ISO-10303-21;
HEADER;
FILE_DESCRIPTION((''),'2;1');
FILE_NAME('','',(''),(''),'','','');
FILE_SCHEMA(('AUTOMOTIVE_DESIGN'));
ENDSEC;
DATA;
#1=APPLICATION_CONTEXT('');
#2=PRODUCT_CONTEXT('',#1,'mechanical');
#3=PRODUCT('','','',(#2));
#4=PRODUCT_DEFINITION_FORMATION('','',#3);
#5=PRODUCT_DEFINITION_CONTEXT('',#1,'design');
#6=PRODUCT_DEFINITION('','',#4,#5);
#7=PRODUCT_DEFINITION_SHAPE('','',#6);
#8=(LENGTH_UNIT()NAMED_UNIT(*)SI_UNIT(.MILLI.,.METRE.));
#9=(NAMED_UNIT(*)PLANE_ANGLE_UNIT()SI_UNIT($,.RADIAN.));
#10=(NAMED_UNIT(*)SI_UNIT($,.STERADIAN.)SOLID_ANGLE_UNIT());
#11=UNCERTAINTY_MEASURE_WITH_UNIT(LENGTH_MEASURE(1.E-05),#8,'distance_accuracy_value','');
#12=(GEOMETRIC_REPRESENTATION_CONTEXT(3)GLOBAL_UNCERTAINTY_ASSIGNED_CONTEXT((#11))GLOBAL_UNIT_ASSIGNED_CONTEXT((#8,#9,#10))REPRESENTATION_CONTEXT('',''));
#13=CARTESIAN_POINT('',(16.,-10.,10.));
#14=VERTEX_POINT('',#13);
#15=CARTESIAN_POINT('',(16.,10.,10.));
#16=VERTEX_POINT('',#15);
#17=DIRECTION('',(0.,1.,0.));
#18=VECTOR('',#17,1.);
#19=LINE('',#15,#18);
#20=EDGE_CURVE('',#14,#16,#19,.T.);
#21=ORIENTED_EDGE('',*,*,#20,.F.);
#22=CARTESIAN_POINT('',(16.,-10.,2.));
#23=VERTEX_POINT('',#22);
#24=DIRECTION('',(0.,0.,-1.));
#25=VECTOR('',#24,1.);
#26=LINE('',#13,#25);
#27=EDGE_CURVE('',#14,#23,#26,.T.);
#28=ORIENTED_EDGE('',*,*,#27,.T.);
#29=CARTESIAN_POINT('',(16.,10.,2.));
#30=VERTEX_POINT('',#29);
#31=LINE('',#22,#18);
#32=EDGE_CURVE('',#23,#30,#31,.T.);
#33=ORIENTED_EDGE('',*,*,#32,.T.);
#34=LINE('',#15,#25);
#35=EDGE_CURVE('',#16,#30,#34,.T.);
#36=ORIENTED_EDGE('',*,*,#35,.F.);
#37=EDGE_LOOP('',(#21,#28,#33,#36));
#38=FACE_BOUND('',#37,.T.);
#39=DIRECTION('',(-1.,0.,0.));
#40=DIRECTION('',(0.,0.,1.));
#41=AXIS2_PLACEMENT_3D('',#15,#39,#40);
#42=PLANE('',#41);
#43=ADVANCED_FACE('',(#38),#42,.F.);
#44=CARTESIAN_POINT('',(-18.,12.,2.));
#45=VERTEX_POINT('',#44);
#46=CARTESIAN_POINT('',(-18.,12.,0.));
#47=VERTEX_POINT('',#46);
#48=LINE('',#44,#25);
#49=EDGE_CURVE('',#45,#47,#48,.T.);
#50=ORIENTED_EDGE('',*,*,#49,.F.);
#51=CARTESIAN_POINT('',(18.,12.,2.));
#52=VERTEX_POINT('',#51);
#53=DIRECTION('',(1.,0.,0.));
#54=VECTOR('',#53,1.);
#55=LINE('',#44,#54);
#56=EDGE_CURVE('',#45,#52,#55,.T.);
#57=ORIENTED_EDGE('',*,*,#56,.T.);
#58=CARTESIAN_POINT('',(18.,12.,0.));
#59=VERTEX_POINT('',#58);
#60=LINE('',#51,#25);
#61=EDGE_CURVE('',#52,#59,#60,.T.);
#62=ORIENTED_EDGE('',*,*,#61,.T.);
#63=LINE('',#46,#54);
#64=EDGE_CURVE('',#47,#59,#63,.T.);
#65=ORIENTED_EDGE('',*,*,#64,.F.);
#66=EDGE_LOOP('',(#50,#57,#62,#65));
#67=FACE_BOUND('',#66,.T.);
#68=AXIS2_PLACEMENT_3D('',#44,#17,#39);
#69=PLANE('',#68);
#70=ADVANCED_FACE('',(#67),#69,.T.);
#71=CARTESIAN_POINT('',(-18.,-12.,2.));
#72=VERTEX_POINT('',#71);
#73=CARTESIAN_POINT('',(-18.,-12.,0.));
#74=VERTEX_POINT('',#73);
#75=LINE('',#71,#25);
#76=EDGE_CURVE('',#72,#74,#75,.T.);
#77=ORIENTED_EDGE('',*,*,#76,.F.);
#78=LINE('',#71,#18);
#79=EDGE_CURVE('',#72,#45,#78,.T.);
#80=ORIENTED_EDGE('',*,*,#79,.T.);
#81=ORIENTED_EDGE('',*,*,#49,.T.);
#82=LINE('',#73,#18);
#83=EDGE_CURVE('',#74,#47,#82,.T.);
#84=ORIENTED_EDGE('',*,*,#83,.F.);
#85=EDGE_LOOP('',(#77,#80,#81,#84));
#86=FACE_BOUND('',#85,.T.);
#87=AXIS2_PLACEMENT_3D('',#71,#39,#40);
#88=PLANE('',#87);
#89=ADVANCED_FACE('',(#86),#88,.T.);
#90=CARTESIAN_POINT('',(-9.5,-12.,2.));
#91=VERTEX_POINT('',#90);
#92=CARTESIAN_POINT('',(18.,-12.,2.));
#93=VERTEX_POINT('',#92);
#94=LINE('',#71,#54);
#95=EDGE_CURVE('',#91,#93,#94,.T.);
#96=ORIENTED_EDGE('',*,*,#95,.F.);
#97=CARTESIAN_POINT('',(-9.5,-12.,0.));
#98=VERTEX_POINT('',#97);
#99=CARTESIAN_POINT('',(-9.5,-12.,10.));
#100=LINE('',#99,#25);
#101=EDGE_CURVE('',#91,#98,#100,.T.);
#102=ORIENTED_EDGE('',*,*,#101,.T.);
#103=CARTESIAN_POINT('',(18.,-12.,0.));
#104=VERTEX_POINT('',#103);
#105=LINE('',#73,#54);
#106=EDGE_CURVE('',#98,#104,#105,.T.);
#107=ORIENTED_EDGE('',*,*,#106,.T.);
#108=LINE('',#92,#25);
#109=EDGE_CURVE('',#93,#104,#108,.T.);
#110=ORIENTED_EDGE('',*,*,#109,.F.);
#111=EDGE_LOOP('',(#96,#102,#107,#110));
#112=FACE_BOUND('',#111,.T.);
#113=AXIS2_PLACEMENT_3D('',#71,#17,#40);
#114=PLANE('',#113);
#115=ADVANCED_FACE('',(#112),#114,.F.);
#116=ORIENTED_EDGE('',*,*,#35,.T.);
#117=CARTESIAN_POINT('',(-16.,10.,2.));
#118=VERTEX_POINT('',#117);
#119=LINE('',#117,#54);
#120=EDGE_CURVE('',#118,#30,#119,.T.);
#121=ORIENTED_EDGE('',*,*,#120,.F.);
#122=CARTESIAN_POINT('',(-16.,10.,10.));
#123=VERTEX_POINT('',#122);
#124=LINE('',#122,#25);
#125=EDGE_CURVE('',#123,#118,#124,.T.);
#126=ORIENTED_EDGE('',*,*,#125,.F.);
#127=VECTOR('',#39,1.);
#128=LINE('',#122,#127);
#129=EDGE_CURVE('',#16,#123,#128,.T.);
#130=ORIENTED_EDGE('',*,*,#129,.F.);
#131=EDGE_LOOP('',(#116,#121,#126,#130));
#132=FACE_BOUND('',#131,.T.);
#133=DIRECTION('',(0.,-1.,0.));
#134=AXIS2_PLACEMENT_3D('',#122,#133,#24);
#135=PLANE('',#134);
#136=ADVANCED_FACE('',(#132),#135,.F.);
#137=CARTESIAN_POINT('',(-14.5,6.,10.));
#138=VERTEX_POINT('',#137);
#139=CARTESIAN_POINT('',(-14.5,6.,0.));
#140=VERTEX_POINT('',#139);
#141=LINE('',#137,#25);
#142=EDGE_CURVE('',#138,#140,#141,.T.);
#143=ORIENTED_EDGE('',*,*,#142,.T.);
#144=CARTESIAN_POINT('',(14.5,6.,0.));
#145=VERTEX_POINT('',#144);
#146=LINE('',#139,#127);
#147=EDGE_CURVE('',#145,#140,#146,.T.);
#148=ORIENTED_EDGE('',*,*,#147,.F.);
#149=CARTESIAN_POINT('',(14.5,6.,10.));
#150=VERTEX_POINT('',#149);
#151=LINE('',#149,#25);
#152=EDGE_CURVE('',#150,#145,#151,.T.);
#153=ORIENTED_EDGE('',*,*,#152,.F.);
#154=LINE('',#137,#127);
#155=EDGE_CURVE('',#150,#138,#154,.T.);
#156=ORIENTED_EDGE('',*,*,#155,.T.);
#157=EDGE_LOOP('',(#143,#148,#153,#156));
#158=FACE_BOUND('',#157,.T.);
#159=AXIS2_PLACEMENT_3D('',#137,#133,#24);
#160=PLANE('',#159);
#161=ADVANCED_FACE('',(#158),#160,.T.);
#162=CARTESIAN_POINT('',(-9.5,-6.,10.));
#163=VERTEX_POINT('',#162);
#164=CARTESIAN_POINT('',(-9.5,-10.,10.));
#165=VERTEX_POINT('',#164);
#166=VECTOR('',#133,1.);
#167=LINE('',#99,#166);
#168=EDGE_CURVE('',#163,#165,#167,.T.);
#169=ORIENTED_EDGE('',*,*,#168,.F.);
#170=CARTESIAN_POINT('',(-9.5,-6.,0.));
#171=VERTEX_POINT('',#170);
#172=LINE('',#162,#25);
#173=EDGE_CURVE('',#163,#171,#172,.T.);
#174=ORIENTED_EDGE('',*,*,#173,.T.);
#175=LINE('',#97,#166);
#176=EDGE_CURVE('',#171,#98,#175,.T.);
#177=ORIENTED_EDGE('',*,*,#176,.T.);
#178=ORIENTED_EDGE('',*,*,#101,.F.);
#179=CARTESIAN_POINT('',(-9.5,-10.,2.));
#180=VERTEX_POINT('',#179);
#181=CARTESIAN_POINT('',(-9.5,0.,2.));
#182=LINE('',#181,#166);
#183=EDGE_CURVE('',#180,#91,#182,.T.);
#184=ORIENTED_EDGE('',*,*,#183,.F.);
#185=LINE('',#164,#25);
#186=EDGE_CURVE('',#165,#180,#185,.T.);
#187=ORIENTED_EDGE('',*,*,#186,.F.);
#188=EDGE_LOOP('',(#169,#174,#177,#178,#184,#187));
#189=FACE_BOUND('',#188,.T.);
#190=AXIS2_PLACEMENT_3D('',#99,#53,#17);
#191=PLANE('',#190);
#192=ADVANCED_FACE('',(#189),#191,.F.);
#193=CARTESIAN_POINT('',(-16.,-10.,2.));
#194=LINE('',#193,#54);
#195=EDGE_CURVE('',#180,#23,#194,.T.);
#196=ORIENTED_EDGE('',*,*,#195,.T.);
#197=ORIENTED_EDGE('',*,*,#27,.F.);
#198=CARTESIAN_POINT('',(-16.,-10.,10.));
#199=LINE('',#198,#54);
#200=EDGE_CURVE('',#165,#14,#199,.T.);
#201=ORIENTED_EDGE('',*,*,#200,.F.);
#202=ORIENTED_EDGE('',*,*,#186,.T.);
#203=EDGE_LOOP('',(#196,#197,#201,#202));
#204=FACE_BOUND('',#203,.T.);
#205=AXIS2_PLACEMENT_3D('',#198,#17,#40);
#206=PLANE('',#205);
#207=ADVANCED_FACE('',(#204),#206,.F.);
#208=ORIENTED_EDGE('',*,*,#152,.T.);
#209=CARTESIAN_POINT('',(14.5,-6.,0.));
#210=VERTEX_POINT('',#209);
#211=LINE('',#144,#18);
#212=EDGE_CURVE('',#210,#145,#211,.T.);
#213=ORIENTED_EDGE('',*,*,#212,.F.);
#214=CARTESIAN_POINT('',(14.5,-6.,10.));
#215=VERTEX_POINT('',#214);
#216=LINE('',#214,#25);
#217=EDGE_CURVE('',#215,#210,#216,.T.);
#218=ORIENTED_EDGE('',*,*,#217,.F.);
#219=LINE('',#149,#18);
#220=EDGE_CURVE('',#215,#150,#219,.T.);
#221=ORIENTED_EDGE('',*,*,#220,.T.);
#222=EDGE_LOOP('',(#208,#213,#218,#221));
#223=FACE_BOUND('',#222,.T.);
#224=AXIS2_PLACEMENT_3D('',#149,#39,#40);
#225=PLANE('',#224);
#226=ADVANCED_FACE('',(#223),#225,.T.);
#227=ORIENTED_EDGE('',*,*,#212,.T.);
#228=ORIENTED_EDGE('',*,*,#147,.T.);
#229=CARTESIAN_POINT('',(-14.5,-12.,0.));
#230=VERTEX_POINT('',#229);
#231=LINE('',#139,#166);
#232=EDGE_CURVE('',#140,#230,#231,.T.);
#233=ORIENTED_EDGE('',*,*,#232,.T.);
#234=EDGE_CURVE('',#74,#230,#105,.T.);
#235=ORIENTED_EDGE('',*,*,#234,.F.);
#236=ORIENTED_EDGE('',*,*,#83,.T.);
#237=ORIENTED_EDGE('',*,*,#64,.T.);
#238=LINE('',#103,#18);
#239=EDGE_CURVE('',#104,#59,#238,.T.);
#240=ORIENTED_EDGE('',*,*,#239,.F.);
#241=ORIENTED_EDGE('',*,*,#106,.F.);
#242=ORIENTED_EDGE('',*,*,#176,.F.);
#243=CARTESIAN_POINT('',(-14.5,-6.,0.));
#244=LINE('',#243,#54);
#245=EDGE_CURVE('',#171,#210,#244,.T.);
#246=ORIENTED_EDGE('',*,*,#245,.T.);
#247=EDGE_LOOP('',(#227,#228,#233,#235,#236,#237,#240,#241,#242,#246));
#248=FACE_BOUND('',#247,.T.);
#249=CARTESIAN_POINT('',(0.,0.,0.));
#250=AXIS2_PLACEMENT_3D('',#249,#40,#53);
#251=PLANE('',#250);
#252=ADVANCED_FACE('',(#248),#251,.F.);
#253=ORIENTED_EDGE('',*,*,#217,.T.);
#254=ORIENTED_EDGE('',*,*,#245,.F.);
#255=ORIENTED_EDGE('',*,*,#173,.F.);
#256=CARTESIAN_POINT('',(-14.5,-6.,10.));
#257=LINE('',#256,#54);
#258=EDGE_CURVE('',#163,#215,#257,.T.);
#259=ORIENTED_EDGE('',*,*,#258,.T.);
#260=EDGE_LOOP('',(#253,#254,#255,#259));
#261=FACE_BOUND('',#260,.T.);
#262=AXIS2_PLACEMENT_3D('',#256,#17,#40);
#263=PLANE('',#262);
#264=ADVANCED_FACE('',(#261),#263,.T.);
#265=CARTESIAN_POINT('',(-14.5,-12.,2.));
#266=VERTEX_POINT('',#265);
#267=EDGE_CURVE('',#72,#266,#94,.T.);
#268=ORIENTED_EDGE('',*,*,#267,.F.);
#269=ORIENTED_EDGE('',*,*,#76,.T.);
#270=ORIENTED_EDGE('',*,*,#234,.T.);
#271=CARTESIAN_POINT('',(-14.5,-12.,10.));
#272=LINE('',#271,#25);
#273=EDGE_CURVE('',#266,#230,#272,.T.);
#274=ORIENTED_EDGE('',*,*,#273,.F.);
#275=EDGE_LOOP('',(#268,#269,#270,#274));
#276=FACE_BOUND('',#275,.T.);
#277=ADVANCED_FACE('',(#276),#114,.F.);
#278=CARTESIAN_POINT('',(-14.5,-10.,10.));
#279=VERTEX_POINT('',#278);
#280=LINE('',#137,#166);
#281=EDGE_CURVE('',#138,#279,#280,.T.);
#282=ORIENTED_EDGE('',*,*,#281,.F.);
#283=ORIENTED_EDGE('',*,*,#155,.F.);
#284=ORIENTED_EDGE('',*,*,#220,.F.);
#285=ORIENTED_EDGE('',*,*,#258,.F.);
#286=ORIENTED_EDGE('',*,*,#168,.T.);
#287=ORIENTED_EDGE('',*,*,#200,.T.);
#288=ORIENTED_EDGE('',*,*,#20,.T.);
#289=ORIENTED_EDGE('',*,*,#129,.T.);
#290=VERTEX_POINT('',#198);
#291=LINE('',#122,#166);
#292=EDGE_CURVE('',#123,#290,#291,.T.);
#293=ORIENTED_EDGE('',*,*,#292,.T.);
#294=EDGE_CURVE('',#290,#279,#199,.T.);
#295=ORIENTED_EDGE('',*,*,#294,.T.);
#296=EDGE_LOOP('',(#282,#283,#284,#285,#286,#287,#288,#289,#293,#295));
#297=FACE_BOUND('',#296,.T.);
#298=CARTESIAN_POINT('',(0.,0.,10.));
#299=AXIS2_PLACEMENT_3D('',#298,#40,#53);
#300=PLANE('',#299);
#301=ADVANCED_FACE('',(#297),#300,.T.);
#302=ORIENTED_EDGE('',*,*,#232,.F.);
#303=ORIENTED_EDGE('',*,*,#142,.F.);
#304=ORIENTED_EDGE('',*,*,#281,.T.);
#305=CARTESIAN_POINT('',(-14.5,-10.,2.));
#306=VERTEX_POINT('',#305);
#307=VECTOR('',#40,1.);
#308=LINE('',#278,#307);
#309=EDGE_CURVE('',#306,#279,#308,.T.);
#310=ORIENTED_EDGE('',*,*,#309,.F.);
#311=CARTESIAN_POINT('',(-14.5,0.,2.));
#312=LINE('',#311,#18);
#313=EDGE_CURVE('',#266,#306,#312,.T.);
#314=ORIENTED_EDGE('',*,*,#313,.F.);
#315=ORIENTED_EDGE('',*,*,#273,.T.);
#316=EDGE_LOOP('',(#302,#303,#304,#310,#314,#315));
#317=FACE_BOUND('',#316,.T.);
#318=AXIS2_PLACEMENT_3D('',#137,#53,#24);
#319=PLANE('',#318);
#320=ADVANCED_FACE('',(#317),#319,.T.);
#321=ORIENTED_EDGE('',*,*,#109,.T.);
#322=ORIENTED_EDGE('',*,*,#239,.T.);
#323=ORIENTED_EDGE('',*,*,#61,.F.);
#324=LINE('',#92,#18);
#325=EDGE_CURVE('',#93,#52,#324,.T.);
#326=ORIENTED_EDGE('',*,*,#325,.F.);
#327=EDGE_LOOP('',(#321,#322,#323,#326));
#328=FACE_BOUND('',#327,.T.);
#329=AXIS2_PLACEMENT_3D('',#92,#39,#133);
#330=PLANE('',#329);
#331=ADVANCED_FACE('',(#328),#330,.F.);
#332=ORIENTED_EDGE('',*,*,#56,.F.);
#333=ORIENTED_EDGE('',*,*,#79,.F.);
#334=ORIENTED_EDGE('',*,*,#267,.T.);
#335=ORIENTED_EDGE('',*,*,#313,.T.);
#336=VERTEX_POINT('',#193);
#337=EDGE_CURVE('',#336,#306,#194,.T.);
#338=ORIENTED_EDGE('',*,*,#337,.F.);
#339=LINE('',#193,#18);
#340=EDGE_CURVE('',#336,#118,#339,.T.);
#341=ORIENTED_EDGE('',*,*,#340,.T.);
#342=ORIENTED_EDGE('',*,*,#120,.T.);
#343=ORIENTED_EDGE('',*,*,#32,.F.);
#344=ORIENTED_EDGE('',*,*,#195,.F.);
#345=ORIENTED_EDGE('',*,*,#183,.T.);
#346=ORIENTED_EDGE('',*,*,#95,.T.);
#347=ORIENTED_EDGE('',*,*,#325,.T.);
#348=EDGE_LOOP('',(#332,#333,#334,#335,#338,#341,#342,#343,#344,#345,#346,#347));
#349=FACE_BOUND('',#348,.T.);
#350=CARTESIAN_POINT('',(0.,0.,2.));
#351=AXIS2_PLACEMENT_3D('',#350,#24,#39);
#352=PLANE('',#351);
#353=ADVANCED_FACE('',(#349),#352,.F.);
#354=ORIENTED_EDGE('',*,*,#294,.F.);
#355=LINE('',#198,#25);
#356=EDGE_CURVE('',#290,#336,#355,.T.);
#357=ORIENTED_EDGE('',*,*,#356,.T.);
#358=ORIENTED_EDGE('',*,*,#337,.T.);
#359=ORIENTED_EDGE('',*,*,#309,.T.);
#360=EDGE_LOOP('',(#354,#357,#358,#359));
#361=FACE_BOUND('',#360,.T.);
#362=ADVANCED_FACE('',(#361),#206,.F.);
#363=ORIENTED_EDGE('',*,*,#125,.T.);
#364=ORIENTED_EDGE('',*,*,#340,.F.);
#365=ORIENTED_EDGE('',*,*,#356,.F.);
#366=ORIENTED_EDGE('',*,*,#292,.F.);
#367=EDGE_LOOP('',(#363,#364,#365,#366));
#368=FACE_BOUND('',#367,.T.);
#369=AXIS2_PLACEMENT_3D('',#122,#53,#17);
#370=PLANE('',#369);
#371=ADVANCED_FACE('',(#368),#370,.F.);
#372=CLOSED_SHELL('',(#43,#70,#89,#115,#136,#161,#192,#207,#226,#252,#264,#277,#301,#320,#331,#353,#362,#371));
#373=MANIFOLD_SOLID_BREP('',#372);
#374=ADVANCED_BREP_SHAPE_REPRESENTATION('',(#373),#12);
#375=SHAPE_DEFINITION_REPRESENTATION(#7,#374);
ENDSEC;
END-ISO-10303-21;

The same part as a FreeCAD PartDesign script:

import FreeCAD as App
import Part
import Sketcher
from FreeCAD import Vector
Q = App.Units.Quantity


def add_polygon(sketch, points):
    """Adds a closed chain of lines whose ends are joined by coincident constraints."""
    first, n = sketch.GeometryCount, len(points)
    for a, b in zip(points, points[1:] + points[:1]):
        sketch.addGeometry(Part.LineSegment(App.Vector(*a, 0), App.Vector(*b, 0)), False)
    for i in range(n):
        sketch.addConstraint(Sketcher.Constraint("Coincident", first + i, 2, first + (i + 1) % n, 1))

doc = App.newDocument("Part")
params = doc.addObject("Spreadsheet::Sheet", "Params")
for row, (alias, value) in enumerate([
    ("sketch1_width", "32 mm"),
    ("sketch1_width2", "29 mm"),
    ("sketch1_height", "20 mm"),
    ("sketch1_height2", "12 mm"),
    ("pad1_length", "10 mm"),
    ("sketch2_width", "36 mm"),
    ("sketch2_width2", "32 mm"),
    ("sketch2_height", "24 mm"),
    ("sketch2_height2", "20 mm"),
    ("pad2_length", "2 mm"),
    ("sketch3_width", "5 mm"),
    ("sketch3_height", "6 mm"),
], start=1):
    params.set(f"A{row}", alias)
    params.set(f"B{row}", "=" + value)
    params.setAlias(f"B{row}", alias)

body = doc.addObject("PartDesign::Body", "Body")

sketch1 = body.newObject("Sketcher::SketchObject", "Sketch")
sketch1.AttachmentSupport = (doc.getObject("XY_Plane"), [""])
sketch1.MapMode = "FlatFace"
add_polygon(sketch1, [(-16, 10), (-16, -10), (16, -10), (16, 10)])
add_polygon(sketch1, [(14.5, -6), (-14.5, -6), (-14.5, 6), (14.5, 6)])
sketch1.addConstraint(Sketcher.Constraint("Vertical", 0))
sketch1.addConstraint(Sketcher.Constraint("Horizontal", 1))
sketch1.addConstraint(Sketcher.Constraint("Vertical", 2))
sketch1.addConstraint(Sketcher.Constraint("Horizontal", 3))
sketch1.addConstraint(Sketcher.Constraint("Horizontal", 4))
sketch1.addConstraint(Sketcher.Constraint("Vertical", 5))
sketch1.addConstraint(Sketcher.Constraint("Horizontal", 6))
sketch1.addConstraint(Sketcher.Constraint("Vertical", 7))
sketch1.addConstraint(Sketcher.Constraint("Symmetric", 0, 2, 2, 2, -1, 1))
sketch1.addConstraint(Sketcher.Constraint("Symmetric", 4, 2, 6, 2, -1, 1))
sketch1.addConstraint(Sketcher.Constraint("DistanceX", 1, 1, 1, 2, Q("32 mm")))
sketch1.addConstraint(Sketcher.Constraint("DistanceX", 4, 2, 4, 1, Q("29 mm")))
sketch1.addConstraint(Sketcher.Constraint("DistanceY", 0, 2, 0, 1, Q("20 mm")))
sketch1.addConstraint(Sketcher.Constraint("DistanceY", 5, 1, 5, 2, Q("12 mm")))
sketch1.setExpression("Constraints[18]", "Params.sketch1_width")
sketch1.setExpression("Constraints[19]", "Params.sketch1_width2")
sketch1.setExpression("Constraints[20]", "Params.sketch1_height")
sketch1.setExpression("Constraints[21]", "Params.sketch1_height2")
pad1 = body.newObject("PartDesign::Pad", "Pad")
pad1.Profile = sketch1
pad1.setExpression("Length", "Params.pad1_length")

sketch2 = body.newObject("Sketcher::SketchObject", "Sketch001")
sketch2.AttachmentSupport = (doc.getObject("XY_Plane"), [""])
sketch2.MapMode = "FlatFace"
add_polygon(sketch2, [(18, 12), (18, -12), (-18, -12), (-18, 12)])
add_polygon(sketch2, [(-16, -10), (16, -10), (16, 10), (-16, 10)])
sketch2.addConstraint(Sketcher.Constraint("Vertical", 0))
sketch2.addConstraint(Sketcher.Constraint("Horizontal", 1))
sketch2.addConstraint(Sketcher.Constraint("Vertical", 2))
sketch2.addConstraint(Sketcher.Constraint("Horizontal", 3))
sketch2.addConstraint(Sketcher.Constraint("Horizontal", 4))
sketch2.addConstraint(Sketcher.Constraint("Vertical", 5))
sketch2.addConstraint(Sketcher.Constraint("Horizontal", 6))
sketch2.addConstraint(Sketcher.Constraint("Vertical", 7))
sketch2.addConstraint(Sketcher.Constraint("Symmetric", 0, 2, 2, 2, -1, 1))
sketch2.addConstraint(Sketcher.Constraint("Symmetric", 4, 2, 6, 2, -1, 1))
sketch2.addConstraint(Sketcher.Constraint("DistanceX", 1, 2, 1, 1, Q("36 mm")))
sketch2.addConstraint(Sketcher.Constraint("DistanceX", 4, 1, 4, 2, Q("32 mm")))
sketch2.addConstraint(Sketcher.Constraint("DistanceY", 0, 2, 0, 1, Q("24 mm")))
sketch2.addConstraint(Sketcher.Constraint("DistanceY", 5, 1, 5, 2, Q("20 mm")))
sketch2.setExpression("Constraints[18]", "Params.sketch2_width")
sketch2.setExpression("Constraints[19]", "Params.sketch2_width2")
sketch2.setExpression("Constraints[20]", "Params.sketch2_height")
sketch2.setExpression("Constraints[21]", "Params.sketch2_height2")
pad2 = body.newObject("PartDesign::Pad", "Pad001")
pad2.Profile = sketch2
pad2.setExpression("Length", "Params.pad2_length")

sketch3 = body.newObject("Sketcher::SketchObject", "Sketch002")
sketch3.AttachmentSupport = (doc.getObject("XY_Plane"), [""])
sketch3.MapMode = "FlatFace"
add_polygon(sketch3, [(-9.5, -6), (-9.5, -12), (-14.5, -12), (-14.5, -6)])
sketch3.addConstraint(Sketcher.Constraint("Vertical", 0))
sketch3.addConstraint(Sketcher.Constraint("Horizontal", 1))
sketch3.addConstraint(Sketcher.Constraint("Vertical", 2))
sketch3.addConstraint(Sketcher.Constraint("Horizontal", 3))
sketch3.addConstraint(Sketcher.Constraint("DistanceX", 1, 2, 1, 1, Q("5 mm")))
sketch3.addConstraint(Sketcher.Constraint("DistanceY", 0, 2, 0, 1, Q("6 mm")))
sketch3.addConstraint(Sketcher.Constraint("DistanceY", 0, 2, -1, 1, Q("12 mm")))
sketch3.addConstraint(Sketcher.Constraint("DistanceX", 0, 2, -1, 1, Q("9.5 mm")))
sketch3.setExpression("Constraints[8]", "Params.sketch3_width")
sketch3.setExpression("Constraints[9]", "Params.sketch3_height")
pocket1 = body.newObject("PartDesign::Pocket", "Pocket")
pocket1.Profile = sketch3
pocket1.Type = "ThroughAll"
pocket1.Reversed = True

doc.recompute()
